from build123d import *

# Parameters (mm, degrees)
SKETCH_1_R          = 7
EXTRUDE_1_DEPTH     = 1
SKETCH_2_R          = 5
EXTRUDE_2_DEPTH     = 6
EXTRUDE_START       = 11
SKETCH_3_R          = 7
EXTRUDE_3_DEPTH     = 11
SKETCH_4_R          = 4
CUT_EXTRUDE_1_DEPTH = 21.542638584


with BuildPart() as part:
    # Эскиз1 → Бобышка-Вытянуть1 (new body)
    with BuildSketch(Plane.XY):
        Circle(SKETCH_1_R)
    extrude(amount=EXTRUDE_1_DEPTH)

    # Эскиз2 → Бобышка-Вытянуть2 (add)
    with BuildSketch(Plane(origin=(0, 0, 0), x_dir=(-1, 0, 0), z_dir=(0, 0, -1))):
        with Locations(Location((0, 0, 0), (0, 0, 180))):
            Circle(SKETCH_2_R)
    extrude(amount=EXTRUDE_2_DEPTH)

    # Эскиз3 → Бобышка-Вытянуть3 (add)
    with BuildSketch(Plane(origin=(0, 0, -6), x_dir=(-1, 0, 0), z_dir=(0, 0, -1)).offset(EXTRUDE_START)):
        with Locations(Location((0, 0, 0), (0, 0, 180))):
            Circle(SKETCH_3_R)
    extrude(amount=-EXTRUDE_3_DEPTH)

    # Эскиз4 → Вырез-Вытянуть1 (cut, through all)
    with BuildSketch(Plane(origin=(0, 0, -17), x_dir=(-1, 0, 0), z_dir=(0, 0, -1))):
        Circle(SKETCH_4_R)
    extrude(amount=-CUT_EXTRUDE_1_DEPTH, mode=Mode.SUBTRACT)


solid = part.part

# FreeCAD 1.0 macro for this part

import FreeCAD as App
import Part
import Sketcher

V = App.Vector
Q = App.Units.Quantity

doc = App.newDocument("Part")
body = doc.addObject("PartDesign::Body", "Body")

# Sketch on XY plane
sketch1 = doc.addObject("Sketcher::SketchObject", "Sketch")
body.addObject(sketch1)
sketch1.AttachmentSupport = (doc.XY_Plane, [""])
sketch1.MapMode = "FlatFace"
sketch1.addGeometry(Part.Circle(V(0, 0, 0), V(0, 0, 1), 7), False)
sketch1.addConstraint(Sketcher.Constraint("Coincident", 0, 3, -1, 1))
sketch1.addConstraint(Sketcher.Constraint("Diameter", 0, Q("14 mm")))
pad1 = doc.addObject("PartDesign::Pad", "Pad")
body.addObject(pad1)
pad1.Profile = sketch1
pad1.Length = 1

# Sketch on XY plane
sketch2 = doc.addObject("Sketcher::SketchObject", "Sketch001")
body.addObject(sketch2)
sketch2.AttachmentSupport = (doc.XY_Plane, [""])
sketch2.MapMode = "FlatFace"
sketch2.addGeometry(Part.Circle(V(0, 0, 0), V(0, 0, 1), 5), False)
sketch2.addConstraint(Sketcher.Constraint("Coincident", 0, 3, -1, 1))
sketch2.addConstraint(Sketcher.Constraint("Diameter", 0, Q("10 mm")))
pad2 = doc.addObject("PartDesign::Pad", "Pad001")
body.addObject(pad2)
pad2.Profile = sketch2
pad2.Length = 6
pad2.Reversed = True

# Sketch on XY plane
sketch3 = doc.addObject("Sketcher::SketchObject", "Sketch002")
body.addObject(sketch3)
sketch3.AttachmentSupport = (doc.XY_Plane, [""])
sketch3.MapMode = "FlatFace"
sketch3.AttachmentOffset = App.Placement(V(0, 0, -17), App.Rotation())
sketch3.addGeometry(Part.Circle(V(0, 0, 0), V(0, 0, 1), 7), False)
sketch3.addConstraint(Sketcher.Constraint("Coincident", 0, 3, -1, 1))
sketch3.addConstraint(Sketcher.Constraint("Diameter", 0, Q("14 mm")))
pad3 = doc.addObject("PartDesign::Pad", "Pad002")
body.addObject(pad3)
pad3.Profile = sketch3
pad3.Length = 11

# Sketch on XY plane
sketch4 = doc.addObject("Sketcher::SketchObject", "Sketch003")
body.addObject(sketch4)
sketch4.AttachmentSupport = (doc.XY_Plane, [""])
sketch4.MapMode = "FlatFace"
sketch4.AttachmentOffset = App.Placement(V(0, 0, -17), App.Rotation())
sketch4.addGeometry(Part.Circle(V(0, 0, 0), V(0, 0, 1), 4), False)
sketch4.addConstraint(Sketcher.Constraint("Coincident", 0, 3, -1, 1))
sketch4.addConstraint(Sketcher.Constraint("Diameter", 0, Q("8 mm")))
pocket1 = doc.addObject("PartDesign::Pocket", "Pocket")
body.addObject(pocket1)
pocket1.Profile = sketch4
pocket1.Type = "ThroughAll"
pocket1.Reversed = True

doc.recompute()
